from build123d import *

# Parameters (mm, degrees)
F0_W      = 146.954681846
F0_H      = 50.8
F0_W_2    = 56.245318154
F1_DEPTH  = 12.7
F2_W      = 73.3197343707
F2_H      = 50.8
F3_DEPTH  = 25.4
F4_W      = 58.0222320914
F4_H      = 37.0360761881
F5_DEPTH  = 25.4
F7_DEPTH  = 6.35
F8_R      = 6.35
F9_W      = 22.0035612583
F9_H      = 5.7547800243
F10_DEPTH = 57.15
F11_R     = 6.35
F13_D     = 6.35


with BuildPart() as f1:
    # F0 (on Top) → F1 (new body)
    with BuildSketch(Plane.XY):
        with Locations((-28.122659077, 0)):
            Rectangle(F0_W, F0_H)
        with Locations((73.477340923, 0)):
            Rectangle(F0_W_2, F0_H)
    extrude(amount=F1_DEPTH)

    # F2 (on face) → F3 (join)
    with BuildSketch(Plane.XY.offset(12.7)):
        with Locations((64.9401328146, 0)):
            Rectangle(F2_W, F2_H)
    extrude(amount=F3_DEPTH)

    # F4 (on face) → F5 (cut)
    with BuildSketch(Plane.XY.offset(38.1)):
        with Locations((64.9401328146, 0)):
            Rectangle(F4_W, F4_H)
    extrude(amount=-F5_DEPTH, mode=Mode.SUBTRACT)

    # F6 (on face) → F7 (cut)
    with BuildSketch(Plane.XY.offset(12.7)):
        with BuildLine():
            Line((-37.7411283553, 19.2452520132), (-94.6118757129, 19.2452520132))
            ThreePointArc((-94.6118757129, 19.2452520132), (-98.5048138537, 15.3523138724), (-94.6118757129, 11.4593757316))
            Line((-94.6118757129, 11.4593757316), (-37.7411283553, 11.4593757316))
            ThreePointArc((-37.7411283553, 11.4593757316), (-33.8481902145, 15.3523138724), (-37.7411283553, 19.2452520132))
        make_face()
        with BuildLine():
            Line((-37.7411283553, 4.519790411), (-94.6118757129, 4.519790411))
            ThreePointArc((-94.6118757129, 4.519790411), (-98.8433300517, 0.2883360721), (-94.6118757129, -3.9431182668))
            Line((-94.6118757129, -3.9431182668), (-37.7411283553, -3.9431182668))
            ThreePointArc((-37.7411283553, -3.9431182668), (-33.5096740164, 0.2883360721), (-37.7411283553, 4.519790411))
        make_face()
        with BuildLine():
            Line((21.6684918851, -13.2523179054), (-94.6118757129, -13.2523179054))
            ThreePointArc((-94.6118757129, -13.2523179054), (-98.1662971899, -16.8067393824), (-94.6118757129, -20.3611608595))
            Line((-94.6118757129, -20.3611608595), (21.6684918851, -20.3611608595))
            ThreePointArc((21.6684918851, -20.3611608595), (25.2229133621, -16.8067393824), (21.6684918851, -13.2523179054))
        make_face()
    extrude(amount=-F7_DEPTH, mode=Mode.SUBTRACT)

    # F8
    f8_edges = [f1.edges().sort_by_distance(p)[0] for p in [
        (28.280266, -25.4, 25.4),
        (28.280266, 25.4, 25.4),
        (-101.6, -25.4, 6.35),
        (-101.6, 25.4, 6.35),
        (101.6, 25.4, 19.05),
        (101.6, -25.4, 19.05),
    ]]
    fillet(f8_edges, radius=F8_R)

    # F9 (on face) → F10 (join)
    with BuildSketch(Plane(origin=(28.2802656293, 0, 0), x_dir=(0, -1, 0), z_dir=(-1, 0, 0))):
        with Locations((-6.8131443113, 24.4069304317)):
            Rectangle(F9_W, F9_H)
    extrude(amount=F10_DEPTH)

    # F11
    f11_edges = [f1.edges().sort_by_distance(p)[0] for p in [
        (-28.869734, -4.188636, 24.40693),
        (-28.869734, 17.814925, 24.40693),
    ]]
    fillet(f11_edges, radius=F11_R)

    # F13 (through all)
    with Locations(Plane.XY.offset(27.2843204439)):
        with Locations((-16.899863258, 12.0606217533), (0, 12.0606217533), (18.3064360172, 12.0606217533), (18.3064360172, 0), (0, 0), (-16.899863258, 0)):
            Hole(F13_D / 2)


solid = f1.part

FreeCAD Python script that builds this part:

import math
import FreeCAD as App
import Part
import Sketcher
from FreeCAD import Vector
Q = App.Units.Quantity


def edges_at(feature, points):
    """Names of the edges that pass closest to the given points."""
    edges = feature.Shape.Edges
    near = lambda p: min(range(len(edges)), key=lambda i: edges[i].distToShape(Part.Vertex(*p))[0])
    return sorted({f"Edge{near(p) + 1}" for p in points})

doc = App.newDocument("Part")
body = doc.addObject("PartDesign::Body", "Body")

# Sketch on XY plane
sketch1 = body.newObject("Sketcher::SketchObject", "Sketch")
sketch1.AttachmentSupport = (doc.getObject("XY_Plane"), [""])
sketch1.MapMode = "FlatFace"
sketch1.addGeometry([
    Part.LineSegment(Vector(-101.6, 25.4, 0), Vector(-101.6, -25.4, 0)),
    Part.LineSegment(Vector(-101.6, -25.4, 0), Vector(101.6, -25.4, 0)),
    Part.LineSegment(Vector(101.6, -25.4, 0), Vector(101.6, 25.4, 0)),
    Part.LineSegment(Vector(101.6, 25.4, 0), Vector(-101.6, 25.4, 0)),
], False)
sketch1.addConstraint([
    Sketcher.Constraint("Coincident", 0, 2, 1, 1),
    Sketcher.Constraint("Coincident", 1, 2, 2, 1),
    Sketcher.Constraint("Coincident", 2, 2, 3, 1),
    Sketcher.Constraint("Coincident", 3, 2, 0, 1),
    Sketcher.Constraint("Vertical", 0),
    Sketcher.Constraint("Horizontal", 1),
    Sketcher.Constraint("Vertical", 2),
    Sketcher.Constraint("Horizontal", 3),
    Sketcher.Constraint("Symmetric", 0, 2, 2, 2, -1, 1),
    Sketcher.Constraint("DistanceX", 1, 1, 1, 2, Q("8 in")),
    Sketcher.Constraint("DistanceY", 0, 2, 0, 1, Q("2 in")),
])
pad1 = body.newObject("PartDesign::Pad", "Pad")
pad1.Profile = sketch1
pad1.Length = Q("0.5 in")

# Sketch on XY plane
sketch2 = body.newObject("Sketcher::SketchObject", "Sketch001")
sketch2.AttachmentSupport = (doc.getObject("XY_Plane"), [""])
sketch2.MapMode = "FlatFace"
sketch2.AttachmentOffset = App.Placement(Vector(0, 0, 0.5 * 25.4), App.Rotation())
sketch2.addGeometry([
    Part.LineSegment(Vector(28.280266, 25.4, 0), Vector(28.280266, -25.4, 0)),
    Part.LineSegment(Vector(28.280266, -25.4, 0), Vector(101.6, -25.4, 0)),
    Part.LineSegment(Vector(101.6, -25.4, 0), Vector(101.6, 25.4, 0)),
    Part.LineSegment(Vector(101.6, 25.4, 0), Vector(28.280266, 25.4, 0)),
], False)
sketch2.addConstraint([
    Sketcher.Constraint("Coincident", 0, 2, 1, 1),
    Sketcher.Constraint("Coincident", 1, 2, 2, 1),
    Sketcher.Constraint("Coincident", 2, 2, 3, 1),
    Sketcher.Constraint("Coincident", 3, 2, 0, 1),
    Sketcher.Constraint("Vertical", 0),
    Sketcher.Constraint("Horizontal", 1),
    Sketcher.Constraint("Vertical", 2),
    Sketcher.Constraint("Horizontal", 3),
    Sketcher.Constraint("DistanceY", 0, 2, 0, 1, Q("2 in")),
    Sketcher.Constraint("DistanceY", 0, 2, -1, 1, Q("1 in")),
    Sketcher.Constraint("DistanceX", -1, 1, 1, 2, Q("4 in")),
    Sketcher.Constraint("DistanceX", 1, 1, 1, 2, Q("73.319734 mm")),
])
pad2 = body.newObject("PartDesign::Pad", "Pad001")
pad2.Profile = sketch2
pad2.Length = Q("1 in")

# Sketch on XY plane
sketch3 = body.newObject("Sketcher::SketchObject", "Sketch002")
sketch3.AttachmentSupport = (doc.getObject("XY_Plane"), [""])
sketch3.MapMode = "FlatFace"
sketch3.AttachmentOffset = App.Placement(Vector(0, 0, 1.5 * 25.4), App.Rotation())
sketch3.addGeometry([
    Part.LineSegment(Vector(35.929017, 18.518038, 0), Vector(35.929017, -18.518038, 0)),
    Part.LineSegment(Vector(35.929017, -18.518038, 0), Vector(93.951249, -18.518038, 0)),
    Part.LineSegment(Vector(93.951249, -18.518038, 0), Vector(93.951249, 18.518038, 0)),
    Part.LineSegment(Vector(93.951249, 18.518038, 0), Vector(35.929017, 18.518038, 0)),
], False)
sketch3.addConstraint([
    Sketcher.Constraint("Coincident", 0, 2, 1, 1),
    Sketcher.Constraint("Coincident", 1, 2, 2, 1),
    Sketcher.Constraint("Coincident", 2, 2, 3, 1),
    Sketcher.Constraint("Coincident", 3, 2, 0, 1),
    Sketcher.Constraint("Vertical", 0),
    Sketcher.Constraint("Horizontal", 1),
    Sketcher.Constraint("Vertical", 2),
    Sketcher.Constraint("Horizontal", 3),
    Sketcher.Constraint("DistanceX", 1, 1, 1, 2, Q("58.022232 mm")),
    Sketcher.Constraint("DistanceY", 0, 2, 0, 1, Q("37.036076 mm")),
    Sketcher.Constraint("DistanceY", 0, 2, -1, 1, Q("18.518038 mm")),
    Sketcher.Constraint("DistanceX", -1, 1, 1, 2, Q("93.951249 mm")),
])
pocket1 = body.newObject("PartDesign::Pocket", "Pocket")
pocket1.Profile = sketch3
pocket1.Length = Q("1 in")

# Sketch on XY plane
sketch4 = body.newObject("Sketcher::SketchObject", "Sketch003")
sketch4.AttachmentSupport = (doc.getObject("XY_Plane"), [""])
sketch4.MapMode = "FlatFace"
sketch4.AttachmentOffset = App.Placement(Vector(0, 0, 0.5 * 25.4), App.Rotation())
sketch4.addGeometry([
    Part.LineSegment(Vector(-37.741128, 19.245252, 0), Vector(-94.611876, 19.245252, 0)),  # 0
    Part.ArcOfCircle(Part.Circle(Vector(-94.611876, 15.352314, 0), Vector(0, 0, 1), 3.892938), math.radians(90), math.radians(270)),  # 1
    Part.LineSegment(Vector(-94.611876, 11.459376, 0), Vector(-37.741128, 11.459376, 0)),  # 2
    Part.ArcOfCircle(Part.Circle(Vector(-37.741128, 15.352314, 0), Vector(0, 0, 1), 3.892938), math.radians(-90), math.radians(90)),  # 3
    Part.LineSegment(Vector(-37.741128, 4.51979, 0), Vector(-94.611876, 4.51979, 0)),  # 4
    Part.ArcOfCircle(Part.Circle(Vector(-94.611876, 0.288336, 0), Vector(0, 0, 1), 4.231454), math.radians(90), math.radians(270)),  # 5
    Part.LineSegment(Vector(-94.611876, -3.943118, 0), Vector(-37.741128, -3.943118, 0)),  # 6
    Part.ArcOfCircle(Part.Circle(Vector(-37.741128, 0.288336, 0), Vector(0, 0, 1), 4.231454), math.radians(-90), math.radians(90)),  # 7
    Part.LineSegment(Vector(21.668492, -13.252318, 0), Vector(-94.611876, -13.252318, 0)),  # 8
    Part.ArcOfCircle(Part.Circle(Vector(-94.611876, -16.806739, 0), Vector(0, 0, 1), 3.554421), math.radians(90), math.radians(270)),  # 9
    Part.LineSegment(Vector(-94.611876, -20.361161, 0), Vector(21.668492, -20.361161, 0)),  # 10
    Part.ArcOfCircle(Part.Circle(Vector(21.668492, -16.806739, 0), Vector(0, 0, 1), 3.554421), math.radians(-90), math.radians(90)),  # 11
], False)
sketch4.addConstraint([
    Sketcher.Constraint("Tangent", 0, 2, 1, 1),
    Sketcher.Constraint("Tangent", 1, 2, 2, 1),
    Sketcher.Constraint("Tangent", 2, 2, 3, 1),
    Sketcher.Constraint("Tangent", 3, 2, 0, 1),
    Sketcher.Constraint("Tangent", 4, 2, 5, 1),
    Sketcher.Constraint("Tangent", 5, 2, 6, 1),
    Sketcher.Constraint("Tangent", 6, 2, 7, 1),
    Sketcher.Constraint("Tangent", 7, 2, 4, 1),
    Sketcher.Constraint("Tangent", 8, 2, 9, 1),
    Sketcher.Constraint("Tangent", 9, 2, 10, 1),
    Sketcher.Constraint("Tangent", 10, 2, 11, 1),
    Sketcher.Constraint("Tangent", 11, 2, 8, 1),
    Sketcher.Constraint("Horizontal", 0),
    Sketcher.Constraint("Horizontal", 2),
    Sketcher.Constraint("Horizontal", 4),
    Sketcher.Constraint("Horizontal", 6),
    Sketcher.Constraint("Horizontal", 8),
    Sketcher.Constraint("Horizontal", 10),
    Sketcher.Constraint("Vertical", 1, 3, 5, 3),
    Sketcher.Constraint("Vertical", 3, 3, 7, 3),
    Sketcher.Constraint("Vertical", 5, 3, 9, 3),
    Sketcher.Constraint("Radius", 1, Q("3.892938 mm")),
    Sketcher.Constraint("Radius", 9, Q("3.554421 mm")),
    Sketcher.Constraint("Radius", 5, Q("4.231454 mm")),
    Sketcher.Constraint("DistanceY", 8, 2, 5, 2, Q("9.3092 mm")),
    Sketcher.Constraint("DistanceX", 0, 2, 0, 1, Q("56.870747 mm")),
    Sketcher.Constraint("DistanceX", 8, 2, 8, 1, Q("116.280368 mm")),
    Sketcher.Constraint("DistanceX", 3, 3, -1, 1, Q("37.741128 mm")),
    Sketcher.Constraint("DistanceY", 9, 3, -1, 1, Q("16.806739 mm")),
    Sketcher.Constraint("DistanceY", 9, 3, 0, 2, Q("36.051991 mm")),
])
pocket2 = body.newObject("PartDesign::Pocket", "Pocket001")
pocket2.Profile = sketch4
pocket2.Length = Q("0.25 in")
doc.recompute()

fillet = body.newObject("PartDesign::Fillet", "Fillet")
fillet.Base = (pocket2, edges_at(pocket2, [
    (28.28, -25.4, 25.4),
    (28.28, 25.4, 25.4),
    (-101.6, -25.4, 6.35),
    (-101.6, 25.4, 6.35),
    (101.6, 25.4, 25.4),
    (101.6, -25.4, 25.4),
]))
fillet.Radius = Q("0.25 in")

# Sketch on YZ plane
sketch5 = body.newObject("Sketcher::SketchObject", "Sketch004")
sketch5.AttachmentSupport = (doc.getObject("YZ_Plane"), [""])
sketch5.MapMode = "FlatFace"
sketch5.AttachmentOffset = App.Placement(Vector(0, 0, 28.280266), App.Rotation())
sketch5.addGeometry([
    Part.LineSegment(Vector(17.814925, 27.28432, 0), Vector(17.814925, 21.52954, 0)),
    Part.LineSegment(Vector(17.814925, 21.52954, 0), Vector(-4.188636, 21.52954, 0)),
    Part.LineSegment(Vector(-4.188636, 21.52954, 0), Vector(-4.188636, 27.28432, 0)),
    Part.LineSegment(Vector(-4.188636, 27.28432, 0), Vector(17.814925, 27.28432, 0)),
], False)
sketch5.addConstraint([
    Sketcher.Constraint("Coincident", 0, 2, 1, 1),
    Sketcher.Constraint("Coincident", 1, 2, 2, 1),
    Sketcher.Constraint("Coincident", 2, 2, 3, 1),
    Sketcher.Constraint("Coincident", 3, 2, 0, 1),
    Sketcher.Constraint("Vertical", 0),
    Sketcher.Constraint("Horizontal", 1),
    Sketcher.Constraint("Vertical", 2),
    Sketcher.Constraint("Horizontal", 3),
    Sketcher.Constraint("DistanceX", 1, 2, 1, 1, Q("22.003561 mm")),
    Sketcher.Constraint("DistanceY", 0, 2, 0, 1, Q("5.75478 mm")),
    Sketcher.Constraint("DistanceY", -1, 1, 0, 2, Q("21.52954 mm")),
    Sketcher.Constraint("DistanceX", -1, 1, 0, 2, Q("17.814925 mm")),
])
pad3 = body.newObject("PartDesign::Pad", "Pad002")
pad3.Profile = sketch5
pad3.Length = Q("2.25 in")
pad3.Reversed = True
doc.recompute()

fillet2 = body.newObject("PartDesign::Fillet", "Fillet001")
fillet2.Base = (pad3, edges_at(pad3, [(-28.87, -4.189, 24.407), (-28.87, 17.815, 24.407)]))
fillet2.Radius = Q("0.25 in")

# Sketch on XY plane
sketch6 = body.newObject("Sketcher::SketchObject", "Sketch005")
sketch6.AttachmentSupport = (doc.getObject("XY_Plane"), [""])
sketch6.MapMode = "FlatFace"
sketch6.AttachmentOffset = App.Placement(Vector(0, 0, 27.28432), App.Rotation())
sketch6.addGeometry([
    Part.Circle(Vector(-16.899863, 12.060622, 0), Vector(0, 0, 1), 3.175),  # 0
    Part.Circle(Vector(0, 12.060622, 0), Vector(0, 0, 1), 3.175),  # 1
    Part.Circle(Vector(18.306436, 12.060622, 0), Vector(0, 0, 1), 3.175),  # 2
    Part.Circle(Vector(18.306436, 0, 0), Vector(0, 0, 1), 3.175),  # 3
    Part.Circle(Vector(0, 0, 0), Vector(0, 0, 1), 3.175),  # 4
    Part.Circle(Vector(-16.899863, 0, 0), Vector(0, 0, 1), 3.175),  # 5
], False)
sketch6.addConstraint([
    Sketcher.Constraint("Coincident", 4, 3, -1, 1),
    Sketcher.Constraint("Equal", 0, 1),
    Sketcher.Constraint("Equal", 1, 2),
    Sketcher.Constraint("Equal", 2, 3),
    Sketcher.Constraint("Equal", 3, 4),
    Sketcher.Constraint("Equal", 4, 5),
    Sketcher.Constraint("PointOnObject", 1, 3, -2),
    Sketcher.Constraint("PointOnObject", 3, 3, -1),
    Sketcher.Constraint("PointOnObject", 5, 3, -1),
    Sketcher.Constraint("Horizontal", 0, 3, 1, 3),
    Sketcher.Constraint("Horizontal", 1, 3, 2, 3),
    Sketcher.Constraint("Vertical", 2, 3, 3, 3),
    Sketcher.Constraint("Vertical", 0, 3, 5, 3),
    Sketcher.Constraint("Diameter", 0, Q("0.25 in")),
    Sketcher.Constraint("DistanceX", 0, 3, 2, 3, Q("35.206299 mm")),
    Sketcher.Constraint("DistanceY", -1, 1, 0, 3, Q("12.060622 mm")),
    Sketcher.Constraint("DistanceX", 0, 3, -1, 1, Q("16.899863 mm")),
])
doc.recompute()
hole = body.newObject("PartDesign::Hole", "Hole")
hole.Profile = sketch6
hole.ThreadType = "None"
hole.Diameter = Q("0.25 in")
hole.DepthType = "ThroughAll"

doc.recompute()
